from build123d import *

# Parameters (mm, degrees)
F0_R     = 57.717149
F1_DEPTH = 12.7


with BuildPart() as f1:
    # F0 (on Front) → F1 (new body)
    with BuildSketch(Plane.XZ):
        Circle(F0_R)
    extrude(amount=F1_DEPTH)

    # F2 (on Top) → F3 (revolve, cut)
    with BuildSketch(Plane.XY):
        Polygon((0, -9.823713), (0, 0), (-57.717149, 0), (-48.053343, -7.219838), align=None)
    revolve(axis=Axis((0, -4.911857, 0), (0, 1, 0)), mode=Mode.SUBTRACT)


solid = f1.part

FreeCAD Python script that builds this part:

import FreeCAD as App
import Part
import Sketcher
Q = App.Units.Quantity


def add_polygon(sketch, points):
    """Adds a closed chain of lines whose ends are joined by coincident constraints."""
    first, n = sketch.GeometryCount, len(points)
    for a, b in zip(points, points[1:] + points[:1]):
        sketch.addGeometry(Part.LineSegment(App.Vector(*a, 0), App.Vector(*b, 0)), False)
    for i in range(n):
        sketch.addConstraint(Sketcher.Constraint("Coincident", first + i, 2, first + (i + 1) % n, 1))

doc = App.newDocument("Part")
body = doc.addObject("PartDesign::Body", "Body")

sketch1 = body.newObject("Sketcher::SketchObject", "Sketch")
sketch1.AttachmentSupport = (doc.getObject("XZ_Plane"), [""])
sketch1.MapMode = "FlatFace"
sketch1.addGeometry(Part.Circle(App.Vector(0, 0, 0), App.Vector(0, 0, 1), 58), False)
sketch1.addConstraint(Sketcher.Constraint("Coincident", 0, 3, -1, 1))
sketch1.addConstraint(Sketcher.Constraint("Diameter", 0, Q("115.434298 mm")))
pad1 = body.newObject("PartDesign::Pad", "Pad")
pad1.Profile = sketch1
pad1.Length = Q("0.5 in")

sketch2 = body.newObject("Sketcher::SketchObject", "Sketch001")
sketch2.AttachmentSupport = (doc.getObject("XY_Plane"), [""])
sketch2.MapMode = "FlatFace"
add_polygon(sketch2, [(0, -10), (0, 0), (-58, 0), (-48, -7)])
sketch2.addConstraint(Sketcher.Constraint("Vertical", 0))
sketch2.addConstraint(Sketcher.Constraint("Horizontal", 1))
sketch2.addConstraint(Sketcher.Constraint("Coincident", 0, 2, -1, 1))
sketch2.addConstraint(Sketcher.Constraint("DistanceX", 1, 2, 1, 1, Q("57.717149 mm")))
sketch2.addConstraint(Sketcher.Constraint("Distance", 2, Q("12.062968 mm")))
sketch2.addConstraint(Sketcher.Constraint("Distance", 3, Q("48.12384 mm")))
sketch2.addConstraint(Sketcher.Constraint("DistanceY", 0, 1, 0, 2, Q("9.823713 mm")))
groove = body.newObject("PartDesign::Groove", "Groove")
groove.Profile = sketch2
groove.ReferenceAxis = (sketch2, ["V_Axis"])
groove.Angle = 360

doc.recompute()
